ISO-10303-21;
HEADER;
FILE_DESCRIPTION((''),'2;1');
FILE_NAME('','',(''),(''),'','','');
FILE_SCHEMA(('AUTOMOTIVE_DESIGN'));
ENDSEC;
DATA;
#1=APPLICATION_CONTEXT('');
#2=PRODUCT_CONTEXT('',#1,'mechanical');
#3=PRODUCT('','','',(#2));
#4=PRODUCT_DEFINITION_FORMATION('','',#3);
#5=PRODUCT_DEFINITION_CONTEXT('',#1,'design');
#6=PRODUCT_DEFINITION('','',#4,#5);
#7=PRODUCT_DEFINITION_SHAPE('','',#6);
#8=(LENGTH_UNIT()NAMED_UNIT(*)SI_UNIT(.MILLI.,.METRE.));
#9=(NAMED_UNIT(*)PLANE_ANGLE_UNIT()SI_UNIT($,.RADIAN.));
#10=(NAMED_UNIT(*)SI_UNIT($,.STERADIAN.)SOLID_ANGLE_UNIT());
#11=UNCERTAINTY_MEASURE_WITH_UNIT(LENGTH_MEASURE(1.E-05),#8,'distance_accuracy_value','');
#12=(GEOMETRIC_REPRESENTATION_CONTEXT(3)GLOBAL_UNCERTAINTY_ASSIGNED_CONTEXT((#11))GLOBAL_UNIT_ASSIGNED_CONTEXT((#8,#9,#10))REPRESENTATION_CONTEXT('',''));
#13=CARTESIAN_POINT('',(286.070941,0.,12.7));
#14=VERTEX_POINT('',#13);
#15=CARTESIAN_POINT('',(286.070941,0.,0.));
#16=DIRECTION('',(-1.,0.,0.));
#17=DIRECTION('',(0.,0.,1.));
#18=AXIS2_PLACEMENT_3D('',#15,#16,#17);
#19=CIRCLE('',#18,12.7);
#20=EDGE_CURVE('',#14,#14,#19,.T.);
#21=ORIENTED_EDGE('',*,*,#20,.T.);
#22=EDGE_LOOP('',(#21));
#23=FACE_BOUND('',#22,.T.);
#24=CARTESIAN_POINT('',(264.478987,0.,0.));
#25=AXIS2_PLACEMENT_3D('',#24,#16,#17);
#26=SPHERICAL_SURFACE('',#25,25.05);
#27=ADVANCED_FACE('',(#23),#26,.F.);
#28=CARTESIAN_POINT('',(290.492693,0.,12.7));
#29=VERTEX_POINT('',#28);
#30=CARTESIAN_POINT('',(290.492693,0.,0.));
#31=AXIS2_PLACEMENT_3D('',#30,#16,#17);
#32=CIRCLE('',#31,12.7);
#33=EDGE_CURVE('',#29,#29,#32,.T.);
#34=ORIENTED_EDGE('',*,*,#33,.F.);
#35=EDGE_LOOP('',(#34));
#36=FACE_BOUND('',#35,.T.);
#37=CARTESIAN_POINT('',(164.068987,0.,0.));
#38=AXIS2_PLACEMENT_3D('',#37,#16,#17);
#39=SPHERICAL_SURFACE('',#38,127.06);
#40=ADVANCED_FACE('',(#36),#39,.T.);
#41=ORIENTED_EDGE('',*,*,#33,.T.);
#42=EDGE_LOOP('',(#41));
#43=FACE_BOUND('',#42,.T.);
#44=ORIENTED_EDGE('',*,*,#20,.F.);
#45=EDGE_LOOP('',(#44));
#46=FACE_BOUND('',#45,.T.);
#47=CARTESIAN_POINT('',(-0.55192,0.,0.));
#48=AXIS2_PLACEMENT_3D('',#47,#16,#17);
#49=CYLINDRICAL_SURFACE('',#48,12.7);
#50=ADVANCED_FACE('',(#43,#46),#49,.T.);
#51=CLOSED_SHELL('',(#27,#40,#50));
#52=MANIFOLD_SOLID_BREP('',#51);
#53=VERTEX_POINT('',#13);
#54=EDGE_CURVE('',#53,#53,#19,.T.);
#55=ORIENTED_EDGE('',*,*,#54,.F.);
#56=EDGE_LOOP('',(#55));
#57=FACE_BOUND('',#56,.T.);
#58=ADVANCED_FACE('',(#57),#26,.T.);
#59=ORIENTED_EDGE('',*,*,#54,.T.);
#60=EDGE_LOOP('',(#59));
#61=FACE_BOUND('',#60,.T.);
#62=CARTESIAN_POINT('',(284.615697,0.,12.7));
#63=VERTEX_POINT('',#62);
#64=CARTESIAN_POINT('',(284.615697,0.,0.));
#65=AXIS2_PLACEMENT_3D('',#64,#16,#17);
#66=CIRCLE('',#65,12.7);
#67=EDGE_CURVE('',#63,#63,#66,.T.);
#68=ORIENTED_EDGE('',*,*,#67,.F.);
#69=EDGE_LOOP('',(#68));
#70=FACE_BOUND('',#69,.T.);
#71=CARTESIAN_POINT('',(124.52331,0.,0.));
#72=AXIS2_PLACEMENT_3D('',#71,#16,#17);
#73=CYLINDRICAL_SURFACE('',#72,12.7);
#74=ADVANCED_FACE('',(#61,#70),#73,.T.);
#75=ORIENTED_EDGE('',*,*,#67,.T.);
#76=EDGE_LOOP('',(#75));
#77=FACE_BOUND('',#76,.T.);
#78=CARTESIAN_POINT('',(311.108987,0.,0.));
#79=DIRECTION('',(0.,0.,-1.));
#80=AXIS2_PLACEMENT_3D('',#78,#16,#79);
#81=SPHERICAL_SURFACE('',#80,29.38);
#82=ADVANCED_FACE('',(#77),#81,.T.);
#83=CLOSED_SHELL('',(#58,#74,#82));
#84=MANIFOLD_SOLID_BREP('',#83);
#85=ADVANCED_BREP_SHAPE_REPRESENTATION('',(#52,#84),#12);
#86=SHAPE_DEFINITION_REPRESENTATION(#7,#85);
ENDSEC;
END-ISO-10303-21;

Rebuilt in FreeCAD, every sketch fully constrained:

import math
import FreeCAD as App
import Part
import Sketcher
from FreeCAD import Vector
Q = App.Units.Quantity

doc = App.newDocument("Part")
body = doc.addObject("PartDesign::Body", "Body")

sketch1 = body.newObject("Sketcher::SketchObject", "Sketch")
sketch1.AttachmentSupport = (doc.getObject("XZ_Plane"), [""])
sketch1.MapMode = "FlatFace"
sketch1.addGeometry(Part.ArcOfCircle(Part.Circle(Vector(311.1, 0, 0), Vector(0, 0, 1), 29.4), math.radians(180), math.radians(206)), False)
sketch1.addGeometry(Part.LineSegment(Vector(281.7, 0, 0), Vector(289.5, 0, 0)), False)
sketch1.addGeometry(Part.ArcOfCircle(Part.Circle(Vector(264.5, 0, 0), Vector(0, 0, 1), 25.1), math.radians(-30), math.radians(0)), False)
sketch1.addGeometry(Part.LineSegment(Vector(286.1, -12.7, 0), Vector(284.6, -12.7, 0)), False)
sketch1.addConstraint(Sketcher.Constraint("Coincident", 0, 1, 1, 1))
sketch1.addConstraint(Sketcher.Constraint("Coincident", 1, 2, 2, 2))
sketch1.addConstraint(Sketcher.Constraint("Coincident", 2, 1, 3, 1))
sketch1.addConstraint(Sketcher.Constraint("Coincident", 3, 2, 0, 2))
sketch1.addConstraint(Sketcher.Constraint("Horizontal", 1))
sketch1.addConstraint(Sketcher.Constraint("Horizontal", 3))
sketch1.addConstraint(Sketcher.Constraint("PointOnObject", 0, 3, -1))
sketch1.addConstraint(Sketcher.Constraint("PointOnObject", 2, 3, -1))
sketch1.addConstraint(Sketcher.Constraint("PointOnObject", 0, 1, -1))
sketch1.addConstraint(Sketcher.Constraint("Radius", 0, Q("29.38 mm")))
sketch1.addConstraint(Sketcher.Constraint("Radius", 2, Q("25.05 mm")))
sketch1.addConstraint(Sketcher.Constraint("DistanceX", 1, 1, 1, 2, Q("7.8 mm")))
sketch1.addConstraint(Sketcher.Constraint("DistanceY", 2, 1, -1, 1, Q("12.7 mm")))
sketch1.addConstraint(Sketcher.Constraint("DistanceX", -1, 1, 2, 1, Q("286.070941 mm")))
revolution = body.newObject("PartDesign::Revolution", "Revolution")
revolution.Profile = sketch1
revolution.ReferenceAxis = (sketch1, ["H_Axis"])
revolution.Angle = 360
body2 = doc.addObject("PartDesign::Body", "Body001")

sketch2 = body2.newObject("Sketcher::SketchObject", "Sketch001")
sketch2.AttachmentSupport = (doc.getObject("XZ_Plane001"), [""])
sketch2.MapMode = "FlatFace"
sketch2.addGeometry(Part.LineSegment(Vector(290.5, -12.7, 0), Vector(286.1, -12.7, 0)), False)
sketch2.addGeometry(Part.ArcOfCircle(Part.Circle(Vector(264.5, 0, 0), Vector(0, 0, 1), 25.1), math.radians(-30), math.radians(0)), False)
sketch2.addGeometry(Part.LineSegment(Vector(289.5, 0, 0), Vector(291.1, 0, 0)), False)
sketch2.addGeometry(Part.ArcOfCircle(Part.Circle(Vector(164.1, 0, 0), Vector(0, 0, 1), 127.1), math.radians(-5.74), math.radians(0)), False)
sketch2.addConstraint(Sketcher.Constraint("Coincident", 0, 2, 1, 1))
sketch2.addConstraint(Sketcher.Constraint("Coincident", 1, 2, 2, 1))
sketch2.addConstraint(Sketcher.Constraint("Coincident", 2, 2, 3, 2))
sketch2.addConstraint(Sketcher.Constraint("Coincident", 3, 1, 0, 1))
sketch2.addConstraint(Sketcher.Constraint("Horizontal", 0))
sketch2.addConstraint(Sketcher.Constraint("Horizontal", 2))
sketch2.addConstraint(Sketcher.Constraint("PointOnObject", 1, 3, -1))
sketch2.addConstraint(Sketcher.Constraint("PointOnObject", 3, 3, -1))
sketch2.addConstraint(Sketcher.Constraint("PointOnObject", 1, 2, -1))
sketch2.addConstraint(Sketcher.Constraint("Radius", 1, Q("25.05 mm")))
sketch2.addConstraint(Sketcher.Constraint("Radius", 3, Q("127.06 mm")))
sketch2.addConstraint(Sketcher.Constraint("DistanceX", 2, 1, 2, 2, Q("1.6 mm")))
sketch2.addConstraint(Sketcher.Constraint("DistanceY", 0, 2, -1, 1, Q("12.7 mm")))
sketch2.addConstraint(Sketcher.Constraint("DistanceX", -1, 1, 0, 2, Q("286.070941 mm")))
revolution2 = body2.newObject("PartDesign::Revolution", "Revolution001")
revolution2.Profile = sketch2
revolution2.ReferenceAxis = (sketch2, ["H_Axis"])
revolution2.Angle = 360

doc.recompute()
